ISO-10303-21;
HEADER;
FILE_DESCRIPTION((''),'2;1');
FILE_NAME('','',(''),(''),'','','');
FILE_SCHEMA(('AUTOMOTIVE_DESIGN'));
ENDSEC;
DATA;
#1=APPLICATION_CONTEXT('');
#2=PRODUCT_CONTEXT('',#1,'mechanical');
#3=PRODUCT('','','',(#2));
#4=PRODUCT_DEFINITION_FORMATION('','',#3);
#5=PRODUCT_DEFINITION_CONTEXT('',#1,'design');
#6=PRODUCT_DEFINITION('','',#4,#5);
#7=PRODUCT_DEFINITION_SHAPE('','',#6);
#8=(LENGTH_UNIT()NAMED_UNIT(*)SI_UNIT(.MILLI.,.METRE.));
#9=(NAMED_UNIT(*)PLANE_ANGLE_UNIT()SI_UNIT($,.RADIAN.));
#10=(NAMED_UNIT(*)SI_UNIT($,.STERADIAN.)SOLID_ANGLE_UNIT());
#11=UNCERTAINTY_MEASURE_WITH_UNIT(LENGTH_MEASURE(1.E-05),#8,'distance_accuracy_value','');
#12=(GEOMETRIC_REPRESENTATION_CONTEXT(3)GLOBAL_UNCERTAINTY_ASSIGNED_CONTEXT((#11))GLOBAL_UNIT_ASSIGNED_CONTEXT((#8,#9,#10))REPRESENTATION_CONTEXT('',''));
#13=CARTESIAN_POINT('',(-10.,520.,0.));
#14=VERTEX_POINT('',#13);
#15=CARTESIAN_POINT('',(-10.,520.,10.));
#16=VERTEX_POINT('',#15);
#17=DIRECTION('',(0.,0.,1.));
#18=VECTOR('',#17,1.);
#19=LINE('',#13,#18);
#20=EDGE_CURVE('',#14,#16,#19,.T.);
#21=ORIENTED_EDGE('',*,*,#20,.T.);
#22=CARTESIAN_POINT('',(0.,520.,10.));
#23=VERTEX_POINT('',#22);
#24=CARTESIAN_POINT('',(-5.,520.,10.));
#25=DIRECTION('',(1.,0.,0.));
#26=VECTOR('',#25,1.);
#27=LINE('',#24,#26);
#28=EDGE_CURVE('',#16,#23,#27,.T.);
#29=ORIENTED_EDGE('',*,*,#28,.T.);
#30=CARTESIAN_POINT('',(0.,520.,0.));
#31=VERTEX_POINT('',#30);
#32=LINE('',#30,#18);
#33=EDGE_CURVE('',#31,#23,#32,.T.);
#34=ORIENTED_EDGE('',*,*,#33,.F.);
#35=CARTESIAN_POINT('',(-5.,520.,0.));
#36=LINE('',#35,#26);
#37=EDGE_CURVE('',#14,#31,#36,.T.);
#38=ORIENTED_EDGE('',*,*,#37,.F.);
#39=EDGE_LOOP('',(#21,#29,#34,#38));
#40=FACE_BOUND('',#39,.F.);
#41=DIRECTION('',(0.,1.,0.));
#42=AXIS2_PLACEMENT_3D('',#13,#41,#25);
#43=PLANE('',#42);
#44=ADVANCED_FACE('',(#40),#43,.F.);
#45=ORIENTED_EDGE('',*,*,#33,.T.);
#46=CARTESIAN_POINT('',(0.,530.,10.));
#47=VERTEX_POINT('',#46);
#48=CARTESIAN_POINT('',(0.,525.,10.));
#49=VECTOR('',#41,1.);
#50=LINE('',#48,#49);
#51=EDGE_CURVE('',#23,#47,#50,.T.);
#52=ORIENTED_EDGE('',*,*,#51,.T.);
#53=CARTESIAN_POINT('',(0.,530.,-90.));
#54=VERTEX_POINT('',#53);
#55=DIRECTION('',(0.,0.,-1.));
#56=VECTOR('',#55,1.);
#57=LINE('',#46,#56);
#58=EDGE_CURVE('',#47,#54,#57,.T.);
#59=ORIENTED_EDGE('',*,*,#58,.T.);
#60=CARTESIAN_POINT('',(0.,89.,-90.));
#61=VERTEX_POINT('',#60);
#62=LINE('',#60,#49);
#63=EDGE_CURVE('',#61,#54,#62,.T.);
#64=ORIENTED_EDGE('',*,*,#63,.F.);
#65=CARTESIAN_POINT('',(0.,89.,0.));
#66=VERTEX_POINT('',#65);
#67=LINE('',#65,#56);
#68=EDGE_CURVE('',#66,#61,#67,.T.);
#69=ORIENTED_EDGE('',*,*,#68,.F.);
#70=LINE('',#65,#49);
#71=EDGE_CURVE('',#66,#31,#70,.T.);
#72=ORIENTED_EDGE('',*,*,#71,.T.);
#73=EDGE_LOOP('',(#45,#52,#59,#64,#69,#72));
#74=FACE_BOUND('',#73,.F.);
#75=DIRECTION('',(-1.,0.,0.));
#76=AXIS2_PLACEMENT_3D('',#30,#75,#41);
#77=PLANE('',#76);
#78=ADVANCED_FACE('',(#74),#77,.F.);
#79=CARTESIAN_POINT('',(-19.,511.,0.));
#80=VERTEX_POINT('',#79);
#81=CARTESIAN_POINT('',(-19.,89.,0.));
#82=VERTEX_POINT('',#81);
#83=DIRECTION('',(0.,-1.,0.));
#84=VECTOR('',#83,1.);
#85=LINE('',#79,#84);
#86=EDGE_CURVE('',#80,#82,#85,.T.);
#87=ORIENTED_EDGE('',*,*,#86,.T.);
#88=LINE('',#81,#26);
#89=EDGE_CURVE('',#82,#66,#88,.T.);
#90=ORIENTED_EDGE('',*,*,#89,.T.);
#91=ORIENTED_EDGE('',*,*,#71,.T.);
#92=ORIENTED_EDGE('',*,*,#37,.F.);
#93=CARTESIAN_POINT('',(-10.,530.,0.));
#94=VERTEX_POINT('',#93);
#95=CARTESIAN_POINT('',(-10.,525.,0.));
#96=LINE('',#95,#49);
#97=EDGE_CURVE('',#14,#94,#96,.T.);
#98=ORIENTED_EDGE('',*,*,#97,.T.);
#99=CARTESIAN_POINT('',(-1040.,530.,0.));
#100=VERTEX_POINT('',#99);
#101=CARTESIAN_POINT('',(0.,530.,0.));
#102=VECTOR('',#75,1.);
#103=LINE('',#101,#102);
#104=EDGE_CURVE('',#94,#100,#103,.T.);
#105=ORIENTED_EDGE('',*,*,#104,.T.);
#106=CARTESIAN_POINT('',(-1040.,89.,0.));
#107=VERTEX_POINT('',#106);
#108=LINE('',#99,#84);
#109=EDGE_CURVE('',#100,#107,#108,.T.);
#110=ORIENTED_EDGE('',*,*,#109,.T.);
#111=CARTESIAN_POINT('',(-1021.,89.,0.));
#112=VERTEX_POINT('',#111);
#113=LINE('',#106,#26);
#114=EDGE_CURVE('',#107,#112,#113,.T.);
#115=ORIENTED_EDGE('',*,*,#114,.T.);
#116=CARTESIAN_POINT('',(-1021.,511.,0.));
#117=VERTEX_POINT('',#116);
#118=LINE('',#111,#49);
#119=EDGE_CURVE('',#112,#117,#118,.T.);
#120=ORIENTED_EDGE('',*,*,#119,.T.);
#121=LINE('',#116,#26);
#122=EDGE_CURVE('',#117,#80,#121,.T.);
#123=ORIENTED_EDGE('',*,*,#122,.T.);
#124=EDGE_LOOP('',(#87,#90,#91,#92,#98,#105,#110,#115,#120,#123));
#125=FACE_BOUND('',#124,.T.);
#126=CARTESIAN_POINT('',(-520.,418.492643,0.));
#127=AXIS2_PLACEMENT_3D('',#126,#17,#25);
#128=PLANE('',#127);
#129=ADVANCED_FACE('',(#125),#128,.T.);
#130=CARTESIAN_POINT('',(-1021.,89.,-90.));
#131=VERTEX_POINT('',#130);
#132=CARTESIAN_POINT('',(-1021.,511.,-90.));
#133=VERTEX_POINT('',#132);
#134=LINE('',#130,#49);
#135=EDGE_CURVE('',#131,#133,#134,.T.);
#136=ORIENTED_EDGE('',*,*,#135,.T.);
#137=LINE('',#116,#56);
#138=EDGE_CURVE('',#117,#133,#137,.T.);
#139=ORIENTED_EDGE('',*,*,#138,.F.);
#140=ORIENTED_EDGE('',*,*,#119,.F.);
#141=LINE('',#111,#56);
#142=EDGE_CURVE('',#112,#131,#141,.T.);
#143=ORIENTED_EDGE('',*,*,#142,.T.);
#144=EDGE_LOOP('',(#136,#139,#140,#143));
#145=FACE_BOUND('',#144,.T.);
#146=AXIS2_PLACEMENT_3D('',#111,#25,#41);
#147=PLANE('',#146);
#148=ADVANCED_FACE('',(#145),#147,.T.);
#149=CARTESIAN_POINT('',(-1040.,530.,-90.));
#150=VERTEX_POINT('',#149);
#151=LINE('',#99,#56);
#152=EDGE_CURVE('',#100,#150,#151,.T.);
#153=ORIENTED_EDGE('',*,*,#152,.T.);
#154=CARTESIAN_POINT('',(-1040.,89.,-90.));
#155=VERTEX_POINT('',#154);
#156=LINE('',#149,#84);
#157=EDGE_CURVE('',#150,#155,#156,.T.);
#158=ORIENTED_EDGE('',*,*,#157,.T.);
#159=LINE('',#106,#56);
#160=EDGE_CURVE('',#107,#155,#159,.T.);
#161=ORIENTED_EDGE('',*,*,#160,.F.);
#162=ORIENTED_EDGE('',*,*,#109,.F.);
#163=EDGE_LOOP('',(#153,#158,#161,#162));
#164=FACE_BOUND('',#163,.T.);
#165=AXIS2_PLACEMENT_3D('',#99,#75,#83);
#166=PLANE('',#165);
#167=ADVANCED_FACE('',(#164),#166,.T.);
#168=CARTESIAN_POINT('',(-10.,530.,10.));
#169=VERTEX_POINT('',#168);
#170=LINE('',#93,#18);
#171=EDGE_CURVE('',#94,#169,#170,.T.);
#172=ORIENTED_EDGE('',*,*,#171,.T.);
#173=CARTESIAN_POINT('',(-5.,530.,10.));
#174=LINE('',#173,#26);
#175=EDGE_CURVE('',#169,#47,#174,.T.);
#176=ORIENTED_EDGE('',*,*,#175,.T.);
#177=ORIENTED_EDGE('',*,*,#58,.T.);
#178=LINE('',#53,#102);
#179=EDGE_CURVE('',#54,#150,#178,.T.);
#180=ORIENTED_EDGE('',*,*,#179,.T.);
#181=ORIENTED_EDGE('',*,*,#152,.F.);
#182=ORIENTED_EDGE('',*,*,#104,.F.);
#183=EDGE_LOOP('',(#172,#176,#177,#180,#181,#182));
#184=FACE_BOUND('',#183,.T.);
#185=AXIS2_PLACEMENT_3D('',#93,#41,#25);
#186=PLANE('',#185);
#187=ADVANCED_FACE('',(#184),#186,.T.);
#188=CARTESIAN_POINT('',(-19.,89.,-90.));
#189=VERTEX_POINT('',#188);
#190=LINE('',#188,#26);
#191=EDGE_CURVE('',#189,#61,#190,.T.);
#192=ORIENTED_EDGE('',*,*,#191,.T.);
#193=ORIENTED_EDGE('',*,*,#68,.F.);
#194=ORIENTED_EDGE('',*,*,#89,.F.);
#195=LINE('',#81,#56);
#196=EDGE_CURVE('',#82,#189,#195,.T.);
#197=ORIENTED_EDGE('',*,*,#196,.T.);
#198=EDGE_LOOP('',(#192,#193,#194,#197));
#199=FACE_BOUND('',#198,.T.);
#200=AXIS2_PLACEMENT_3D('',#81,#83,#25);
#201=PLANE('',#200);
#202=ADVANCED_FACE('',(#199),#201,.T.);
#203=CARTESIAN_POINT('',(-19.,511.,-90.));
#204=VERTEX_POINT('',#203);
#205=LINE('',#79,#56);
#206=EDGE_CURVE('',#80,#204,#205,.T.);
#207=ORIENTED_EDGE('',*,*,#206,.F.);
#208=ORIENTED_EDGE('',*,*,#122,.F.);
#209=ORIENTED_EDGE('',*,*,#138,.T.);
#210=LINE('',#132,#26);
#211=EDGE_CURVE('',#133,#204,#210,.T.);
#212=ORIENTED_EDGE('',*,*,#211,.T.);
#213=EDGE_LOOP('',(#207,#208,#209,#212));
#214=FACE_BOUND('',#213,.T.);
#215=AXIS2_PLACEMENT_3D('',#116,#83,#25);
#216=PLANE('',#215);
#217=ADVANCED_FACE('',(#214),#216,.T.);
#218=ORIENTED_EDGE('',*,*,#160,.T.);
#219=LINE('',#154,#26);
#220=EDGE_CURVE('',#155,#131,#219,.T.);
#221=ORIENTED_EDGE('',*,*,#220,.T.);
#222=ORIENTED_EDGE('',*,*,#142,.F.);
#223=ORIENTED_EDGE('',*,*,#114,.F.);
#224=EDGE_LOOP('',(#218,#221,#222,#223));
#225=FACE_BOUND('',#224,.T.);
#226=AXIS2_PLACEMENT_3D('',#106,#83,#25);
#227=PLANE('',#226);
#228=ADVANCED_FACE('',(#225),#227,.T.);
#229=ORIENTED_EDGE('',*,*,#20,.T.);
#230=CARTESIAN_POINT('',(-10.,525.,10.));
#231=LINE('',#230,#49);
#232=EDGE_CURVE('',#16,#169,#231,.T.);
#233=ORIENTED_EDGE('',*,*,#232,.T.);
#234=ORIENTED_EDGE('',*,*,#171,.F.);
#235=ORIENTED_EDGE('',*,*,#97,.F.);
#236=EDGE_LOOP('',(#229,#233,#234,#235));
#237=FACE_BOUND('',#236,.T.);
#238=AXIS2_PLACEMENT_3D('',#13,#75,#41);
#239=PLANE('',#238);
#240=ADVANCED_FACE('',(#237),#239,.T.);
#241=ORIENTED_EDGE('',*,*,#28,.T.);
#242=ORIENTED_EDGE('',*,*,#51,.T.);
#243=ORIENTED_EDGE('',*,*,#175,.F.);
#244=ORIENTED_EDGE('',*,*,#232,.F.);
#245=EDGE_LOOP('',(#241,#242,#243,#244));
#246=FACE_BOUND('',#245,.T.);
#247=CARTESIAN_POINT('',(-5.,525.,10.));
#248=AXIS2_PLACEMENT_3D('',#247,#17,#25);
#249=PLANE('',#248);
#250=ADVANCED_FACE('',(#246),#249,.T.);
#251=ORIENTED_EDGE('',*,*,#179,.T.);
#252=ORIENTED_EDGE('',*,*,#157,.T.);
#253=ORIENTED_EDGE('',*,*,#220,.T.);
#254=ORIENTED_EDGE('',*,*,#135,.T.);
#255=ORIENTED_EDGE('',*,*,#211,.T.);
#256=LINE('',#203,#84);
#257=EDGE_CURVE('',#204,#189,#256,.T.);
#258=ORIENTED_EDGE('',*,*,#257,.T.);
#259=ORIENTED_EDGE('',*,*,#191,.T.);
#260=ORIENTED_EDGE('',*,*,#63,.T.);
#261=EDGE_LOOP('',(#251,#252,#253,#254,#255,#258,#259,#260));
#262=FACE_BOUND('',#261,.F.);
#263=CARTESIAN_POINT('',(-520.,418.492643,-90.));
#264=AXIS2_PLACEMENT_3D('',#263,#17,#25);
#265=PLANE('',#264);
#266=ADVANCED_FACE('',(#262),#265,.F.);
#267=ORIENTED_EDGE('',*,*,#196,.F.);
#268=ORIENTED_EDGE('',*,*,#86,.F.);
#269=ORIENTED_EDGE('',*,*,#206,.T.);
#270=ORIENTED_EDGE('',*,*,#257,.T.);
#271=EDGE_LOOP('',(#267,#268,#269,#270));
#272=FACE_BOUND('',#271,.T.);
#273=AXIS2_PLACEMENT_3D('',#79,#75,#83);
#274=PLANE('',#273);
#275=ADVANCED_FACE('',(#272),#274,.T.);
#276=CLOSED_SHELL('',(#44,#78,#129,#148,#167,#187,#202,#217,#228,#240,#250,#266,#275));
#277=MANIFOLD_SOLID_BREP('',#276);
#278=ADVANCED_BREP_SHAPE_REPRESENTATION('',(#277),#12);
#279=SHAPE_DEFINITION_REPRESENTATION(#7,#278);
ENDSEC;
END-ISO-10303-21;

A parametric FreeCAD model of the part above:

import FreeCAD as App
import Part
import Sketcher


def add_polygon(sketch, points):
    """Adds a closed chain of lines whose ends are joined by coincident constraints."""
    first, n = sketch.GeometryCount, len(points)
    for a, b in zip(points, points[1:] + points[:1]):
        sketch.addGeometry(Part.LineSegment(App.Vector(*a, 0), App.Vector(*b, 0)), False)
    for i in range(n):
        sketch.addConstraint(Sketcher.Constraint("Coincident", first + i, 2, first + (i + 1) % n, 1))

doc = App.newDocument("Part")
params = doc.addObject("Spreadsheet::Sheet", "Params")
for row, (alias, value) in enumerate([
    ("sketch1_width", "19 mm"),
    ("sketch1_width2", "1040 mm"),
    ("sketch1_height", "441 mm"),
    ("sketch1_height2", "422 mm"),
    ("pad1_length", "90 mm"),
    ("sketch2_width", "10 mm"),
    ("pad2_length", "10 mm"),
], start=1):
    params.set(f"A{row}", alias)
    params.set(f"B{row}", "=" + value)
    params.setAlias(f"B{row}", alias)

body = doc.addObject("PartDesign::Body", "Body")

# Sketch on XY plane
sketch1 = doc.addObject("Sketcher::SketchObject", "Sketch")
body.addObject(sketch1)
sketch1.AttachmentSupport = (doc.XY_Plane, [""])
sketch1.MapMode = "FlatFace"
add_polygon(sketch1, [(-19, 89), (0, 89), (0, 530), (-1040, 530), (-1040, 89), (-1021, 89), (-1021, 511), (-19, 511)])  # lines 0-7
sketch1.addConstraint([
    Sketcher.Constraint("Horizontal", 0),
    Sketcher.Constraint("Vertical", 1),
    Sketcher.Constraint("Horizontal", 2),
    Sketcher.Constraint("Vertical", 3),
    Sketcher.Constraint("Horizontal", 4),
    Sketcher.Constraint("Vertical", 5),
    Sketcher.Constraint("Horizontal", 6),
    Sketcher.Constraint("Vertical", 7),
    Sketcher.Constraint("PointOnObject", 0, 2, -2),
    Sketcher.Constraint("Horizontal", 0, 2, 3, 2),
    Sketcher.Constraint("Equal", 0, 4),
    Sketcher.Constraint("DistanceX", 0, 1, 0, 2, 19.0),
    Sketcher.Constraint("DistanceX", 2, 2, 2, 1, 1040.0),
    Sketcher.Constraint("DistanceY", 1, 1, 1, 2, 441.0),
    Sketcher.Constraint("DistanceY", 5, 1, 5, 2, 422.0),
    Sketcher.Constraint("DistanceY", -1, 1, 0, 2, 89.0),
])
sketch1.setExpression("Constraints[19]", "Params.sketch1_width")
sketch1.setExpression("Constraints[20]", "Params.sketch1_width2")
sketch1.setExpression("Constraints[21]", "Params.sketch1_height")
sketch1.setExpression("Constraints[22]", "Params.sketch1_height2")
pad1 = doc.addObject("PartDesign::Pad", "Pad")
body.addObject(pad1)
pad1.Profile = sketch1
pad1.setExpression("Length", "Params.pad1_length")
pad1.Reversed = True

# Sketch on XY plane
sketch2 = doc.addObject("Sketcher::SketchObject", "Sketch001")
body.addObject(sketch2)
sketch2.AttachmentSupport = (doc.XY_Plane, [""])
sketch2.MapMode = "FlatFace"
add_polygon(sketch2, [(-10, 530), (-10, 520), (0, 520), (0, 530)])  # lines 0-3
sketch2.addConstraint([
    Sketcher.Constraint("Vertical", 0),
    Sketcher.Constraint("Horizontal", 1),
    Sketcher.Constraint("Vertical", 2),
    Sketcher.Constraint("Horizontal", 3),
    Sketcher.Constraint("PointOnObject", 1, 2, -2),
    Sketcher.Constraint("Equal", 3, 0),
    Sketcher.Constraint("DistanceX", 1, 1, 1, 2, 10.0),
    Sketcher.Constraint("DistanceY", -1, 1, 0, 2, 520.0),
])
sketch2.setExpression("Constraints[10]", "Params.sketch2_width")
pad2 = doc.addObject("PartDesign::Pad", "Pad001")
body.addObject(pad2)
pad2.Profile = sketch2
pad2.setExpression("Length", "Params.pad2_length")

doc.recompute()
